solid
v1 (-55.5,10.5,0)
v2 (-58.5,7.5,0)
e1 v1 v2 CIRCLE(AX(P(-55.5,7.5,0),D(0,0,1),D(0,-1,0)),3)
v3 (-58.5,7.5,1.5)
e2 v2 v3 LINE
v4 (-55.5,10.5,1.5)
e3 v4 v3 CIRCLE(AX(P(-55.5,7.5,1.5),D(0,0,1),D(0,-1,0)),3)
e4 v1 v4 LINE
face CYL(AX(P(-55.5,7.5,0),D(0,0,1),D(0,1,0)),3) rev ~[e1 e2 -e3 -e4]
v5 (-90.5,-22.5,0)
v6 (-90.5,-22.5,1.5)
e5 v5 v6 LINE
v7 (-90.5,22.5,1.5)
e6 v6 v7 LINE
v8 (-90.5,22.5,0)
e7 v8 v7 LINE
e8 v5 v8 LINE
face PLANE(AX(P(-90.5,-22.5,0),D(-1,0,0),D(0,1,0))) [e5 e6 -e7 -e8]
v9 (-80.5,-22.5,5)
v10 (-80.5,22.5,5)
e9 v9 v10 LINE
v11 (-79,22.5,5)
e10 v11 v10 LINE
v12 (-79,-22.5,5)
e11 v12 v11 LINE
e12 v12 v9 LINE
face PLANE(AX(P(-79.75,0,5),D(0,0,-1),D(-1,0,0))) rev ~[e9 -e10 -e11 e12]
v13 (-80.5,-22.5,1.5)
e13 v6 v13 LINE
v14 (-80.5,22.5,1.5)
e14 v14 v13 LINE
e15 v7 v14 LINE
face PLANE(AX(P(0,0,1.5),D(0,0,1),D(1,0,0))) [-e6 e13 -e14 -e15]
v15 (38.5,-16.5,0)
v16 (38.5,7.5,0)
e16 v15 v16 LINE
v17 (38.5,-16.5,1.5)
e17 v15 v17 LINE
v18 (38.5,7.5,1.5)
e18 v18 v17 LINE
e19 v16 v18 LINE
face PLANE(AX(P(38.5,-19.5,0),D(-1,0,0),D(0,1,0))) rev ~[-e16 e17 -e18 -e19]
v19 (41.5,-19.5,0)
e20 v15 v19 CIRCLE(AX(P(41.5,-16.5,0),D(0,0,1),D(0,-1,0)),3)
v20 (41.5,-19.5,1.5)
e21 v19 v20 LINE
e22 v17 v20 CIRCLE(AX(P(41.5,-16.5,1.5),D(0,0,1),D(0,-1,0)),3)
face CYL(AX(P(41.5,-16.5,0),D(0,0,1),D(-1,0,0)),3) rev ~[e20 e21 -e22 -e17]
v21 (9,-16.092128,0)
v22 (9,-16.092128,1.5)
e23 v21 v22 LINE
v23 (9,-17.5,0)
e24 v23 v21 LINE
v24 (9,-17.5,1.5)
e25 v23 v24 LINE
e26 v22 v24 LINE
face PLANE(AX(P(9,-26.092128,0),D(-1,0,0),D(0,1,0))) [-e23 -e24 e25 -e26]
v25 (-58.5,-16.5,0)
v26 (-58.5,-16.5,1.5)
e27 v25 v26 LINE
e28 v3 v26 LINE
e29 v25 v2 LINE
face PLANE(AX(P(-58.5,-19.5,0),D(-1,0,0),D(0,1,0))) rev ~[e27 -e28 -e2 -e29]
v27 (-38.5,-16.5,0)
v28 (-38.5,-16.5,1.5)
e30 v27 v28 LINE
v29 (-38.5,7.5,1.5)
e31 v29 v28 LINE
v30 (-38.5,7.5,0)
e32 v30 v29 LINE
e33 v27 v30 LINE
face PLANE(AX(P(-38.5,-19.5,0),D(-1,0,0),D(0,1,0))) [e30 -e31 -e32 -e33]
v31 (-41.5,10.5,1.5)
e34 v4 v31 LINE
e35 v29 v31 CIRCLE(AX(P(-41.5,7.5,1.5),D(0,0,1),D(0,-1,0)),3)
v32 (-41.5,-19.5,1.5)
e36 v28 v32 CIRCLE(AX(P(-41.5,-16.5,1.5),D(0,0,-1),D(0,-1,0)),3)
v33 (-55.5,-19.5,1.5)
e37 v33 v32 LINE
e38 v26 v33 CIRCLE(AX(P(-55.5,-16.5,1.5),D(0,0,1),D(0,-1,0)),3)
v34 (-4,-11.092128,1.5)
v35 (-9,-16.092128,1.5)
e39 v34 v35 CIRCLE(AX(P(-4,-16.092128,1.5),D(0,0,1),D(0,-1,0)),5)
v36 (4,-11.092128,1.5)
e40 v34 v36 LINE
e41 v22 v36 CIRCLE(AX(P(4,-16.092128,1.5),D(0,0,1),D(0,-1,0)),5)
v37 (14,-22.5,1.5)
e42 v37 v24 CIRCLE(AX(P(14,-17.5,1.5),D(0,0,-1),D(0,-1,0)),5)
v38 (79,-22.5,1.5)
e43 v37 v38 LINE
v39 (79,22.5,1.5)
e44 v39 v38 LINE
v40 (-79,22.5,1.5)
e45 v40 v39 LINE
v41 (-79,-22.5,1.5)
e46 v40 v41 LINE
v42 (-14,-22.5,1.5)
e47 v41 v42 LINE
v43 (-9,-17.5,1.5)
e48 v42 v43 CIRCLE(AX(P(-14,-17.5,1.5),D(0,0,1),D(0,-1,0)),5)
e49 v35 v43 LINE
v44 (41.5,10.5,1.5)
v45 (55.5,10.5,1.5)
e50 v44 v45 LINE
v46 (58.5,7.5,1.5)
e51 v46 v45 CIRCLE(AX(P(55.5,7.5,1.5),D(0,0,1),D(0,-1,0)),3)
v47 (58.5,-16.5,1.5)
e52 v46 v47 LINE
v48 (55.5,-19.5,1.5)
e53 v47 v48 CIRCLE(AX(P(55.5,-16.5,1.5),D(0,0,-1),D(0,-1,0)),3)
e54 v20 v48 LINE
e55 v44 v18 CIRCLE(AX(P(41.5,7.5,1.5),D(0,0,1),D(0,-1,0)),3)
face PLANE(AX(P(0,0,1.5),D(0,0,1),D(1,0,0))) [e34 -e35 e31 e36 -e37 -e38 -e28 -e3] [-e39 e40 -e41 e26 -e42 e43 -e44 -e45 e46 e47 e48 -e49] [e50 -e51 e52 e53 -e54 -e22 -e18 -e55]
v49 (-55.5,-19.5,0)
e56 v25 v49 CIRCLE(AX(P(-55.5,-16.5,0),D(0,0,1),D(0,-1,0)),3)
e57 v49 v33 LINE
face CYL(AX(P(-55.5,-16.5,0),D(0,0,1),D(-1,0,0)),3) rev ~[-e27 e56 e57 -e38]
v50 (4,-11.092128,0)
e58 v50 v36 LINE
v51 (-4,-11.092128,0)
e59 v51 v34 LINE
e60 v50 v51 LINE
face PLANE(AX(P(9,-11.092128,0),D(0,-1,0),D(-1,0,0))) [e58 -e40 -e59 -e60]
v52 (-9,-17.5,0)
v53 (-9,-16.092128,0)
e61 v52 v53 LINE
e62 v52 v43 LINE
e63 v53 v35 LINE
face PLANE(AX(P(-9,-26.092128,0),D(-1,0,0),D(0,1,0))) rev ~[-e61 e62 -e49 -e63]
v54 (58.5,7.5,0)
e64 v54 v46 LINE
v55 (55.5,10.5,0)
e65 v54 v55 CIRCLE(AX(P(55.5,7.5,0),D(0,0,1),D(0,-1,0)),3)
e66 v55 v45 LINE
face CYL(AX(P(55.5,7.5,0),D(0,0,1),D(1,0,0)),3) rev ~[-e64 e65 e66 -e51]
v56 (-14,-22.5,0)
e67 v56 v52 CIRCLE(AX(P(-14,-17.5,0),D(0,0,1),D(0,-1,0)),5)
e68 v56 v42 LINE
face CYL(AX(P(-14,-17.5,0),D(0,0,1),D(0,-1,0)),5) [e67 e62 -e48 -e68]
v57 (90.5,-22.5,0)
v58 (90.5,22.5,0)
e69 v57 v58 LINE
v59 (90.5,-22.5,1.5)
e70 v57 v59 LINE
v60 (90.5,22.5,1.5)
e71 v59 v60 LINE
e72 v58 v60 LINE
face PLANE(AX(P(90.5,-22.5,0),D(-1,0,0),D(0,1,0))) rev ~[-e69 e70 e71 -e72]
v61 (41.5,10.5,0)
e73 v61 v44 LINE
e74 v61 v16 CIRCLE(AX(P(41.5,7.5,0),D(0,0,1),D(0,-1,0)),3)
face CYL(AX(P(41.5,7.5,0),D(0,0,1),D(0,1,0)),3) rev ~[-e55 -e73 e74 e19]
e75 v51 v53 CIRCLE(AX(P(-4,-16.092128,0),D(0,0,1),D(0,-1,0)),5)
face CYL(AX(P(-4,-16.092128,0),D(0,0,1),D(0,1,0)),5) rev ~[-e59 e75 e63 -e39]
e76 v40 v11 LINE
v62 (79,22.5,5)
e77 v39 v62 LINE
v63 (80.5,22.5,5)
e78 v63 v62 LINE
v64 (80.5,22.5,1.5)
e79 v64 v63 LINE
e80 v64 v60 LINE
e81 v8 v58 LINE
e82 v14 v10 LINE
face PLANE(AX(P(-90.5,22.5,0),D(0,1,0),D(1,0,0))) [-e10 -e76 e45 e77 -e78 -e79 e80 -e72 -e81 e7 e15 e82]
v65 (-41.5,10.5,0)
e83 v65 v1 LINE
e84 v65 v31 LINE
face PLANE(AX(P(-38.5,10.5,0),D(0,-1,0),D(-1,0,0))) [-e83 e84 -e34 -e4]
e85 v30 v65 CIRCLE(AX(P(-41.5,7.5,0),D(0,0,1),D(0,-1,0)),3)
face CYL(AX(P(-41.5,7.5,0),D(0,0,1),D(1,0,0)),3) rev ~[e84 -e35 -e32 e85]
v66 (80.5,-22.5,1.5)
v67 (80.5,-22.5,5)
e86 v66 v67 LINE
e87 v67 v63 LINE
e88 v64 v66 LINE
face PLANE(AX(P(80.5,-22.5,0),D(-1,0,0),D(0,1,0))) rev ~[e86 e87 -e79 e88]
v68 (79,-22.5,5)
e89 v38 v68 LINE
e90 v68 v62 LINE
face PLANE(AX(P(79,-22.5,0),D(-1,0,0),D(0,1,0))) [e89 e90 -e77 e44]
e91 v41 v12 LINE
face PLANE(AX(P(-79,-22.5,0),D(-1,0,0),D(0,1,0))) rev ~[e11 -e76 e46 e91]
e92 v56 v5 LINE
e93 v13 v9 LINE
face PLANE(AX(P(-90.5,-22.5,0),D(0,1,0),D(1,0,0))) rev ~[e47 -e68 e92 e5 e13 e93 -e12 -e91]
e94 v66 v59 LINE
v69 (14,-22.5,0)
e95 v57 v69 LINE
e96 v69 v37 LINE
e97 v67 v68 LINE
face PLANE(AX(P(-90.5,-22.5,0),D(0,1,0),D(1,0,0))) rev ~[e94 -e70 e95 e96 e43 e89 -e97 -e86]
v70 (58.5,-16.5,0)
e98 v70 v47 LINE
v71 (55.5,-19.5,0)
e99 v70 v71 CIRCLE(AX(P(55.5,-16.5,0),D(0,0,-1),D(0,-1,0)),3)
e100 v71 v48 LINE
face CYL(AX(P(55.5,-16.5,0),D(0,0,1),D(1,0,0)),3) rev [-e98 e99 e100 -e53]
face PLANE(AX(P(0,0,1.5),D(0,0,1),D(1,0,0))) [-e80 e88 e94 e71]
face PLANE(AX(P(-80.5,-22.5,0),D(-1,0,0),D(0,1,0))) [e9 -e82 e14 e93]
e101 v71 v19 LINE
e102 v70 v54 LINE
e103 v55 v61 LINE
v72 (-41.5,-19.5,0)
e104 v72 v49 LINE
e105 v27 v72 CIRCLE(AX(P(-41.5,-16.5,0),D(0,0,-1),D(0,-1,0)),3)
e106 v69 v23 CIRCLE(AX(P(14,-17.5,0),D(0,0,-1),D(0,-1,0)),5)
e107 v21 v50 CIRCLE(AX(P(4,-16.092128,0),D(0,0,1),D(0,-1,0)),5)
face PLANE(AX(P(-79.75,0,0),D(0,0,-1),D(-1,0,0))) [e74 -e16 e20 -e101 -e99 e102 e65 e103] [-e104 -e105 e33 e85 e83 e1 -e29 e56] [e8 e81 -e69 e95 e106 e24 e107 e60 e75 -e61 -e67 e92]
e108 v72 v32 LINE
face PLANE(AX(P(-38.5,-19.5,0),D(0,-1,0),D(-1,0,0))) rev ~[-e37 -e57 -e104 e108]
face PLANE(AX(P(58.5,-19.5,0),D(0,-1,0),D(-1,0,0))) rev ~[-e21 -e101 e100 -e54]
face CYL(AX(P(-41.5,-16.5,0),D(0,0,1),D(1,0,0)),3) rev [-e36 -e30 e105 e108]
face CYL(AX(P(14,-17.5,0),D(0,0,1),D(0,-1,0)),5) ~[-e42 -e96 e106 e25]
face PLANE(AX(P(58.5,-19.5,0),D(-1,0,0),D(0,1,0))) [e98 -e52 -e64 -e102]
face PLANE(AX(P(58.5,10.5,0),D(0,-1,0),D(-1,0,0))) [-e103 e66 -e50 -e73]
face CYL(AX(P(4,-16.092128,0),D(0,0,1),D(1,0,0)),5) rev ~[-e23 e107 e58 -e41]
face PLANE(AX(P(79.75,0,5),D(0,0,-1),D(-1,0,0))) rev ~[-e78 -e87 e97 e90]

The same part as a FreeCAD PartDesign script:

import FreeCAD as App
import Part
import Sketcher

V = App.Vector
Q = App.Units.Quantity


def edges_at(feature, points):
    """Names of the edges that pass closest to the given points."""
    edges = feature.Shape.Edges
    near = lambda p: min(range(len(edges)), key=lambda i: edges[i].distToShape(Part.Vertex(*p))[0])
    return sorted({f"Edge{near(p) + 1}" for p in points})


def add_polygon(sketch, points):
    """Adds a closed chain of lines whose ends are joined by coincident constraints."""
    first, n = sketch.GeometryCount, len(points)
    for a, b in zip(points, points[1:] + points[:1]):
        sketch.addGeometry(Part.LineSegment(App.Vector(*a, 0), App.Vector(*b, 0)), False)
    for i in range(n):
        sketch.addConstraint(Sketcher.Constraint("Coincident", first + i, 2, first + (i + 1) % n, 1))

doc = App.newDocument("Part")
body = doc.addObject("PartDesign::Body", "Body")

# Sketch on XY plane
sketch1 = body.newObject("Sketcher::SketchObject", "Sketch")
sketch1.AttachmentSupport = (doc.getObject("XY_Plane"), [""])
sketch1.MapMode = "FlatFace"
add_polygon(sketch1, [(-90, 22), (-90, -22), (90, -22), (90, 22)])  # lines 0-3
sketch1.addConstraint(Sketcher.Constraint("Vertical", 0))
sketch1.addConstraint(Sketcher.Constraint("Horizontal", 1))
sketch1.addConstraint(Sketcher.Constraint("Vertical", 2))
sketch1.addConstraint(Sketcher.Constraint("Horizontal", 3))
sketch1.addConstraint(Sketcher.Constraint("Symmetric", 0, 2, 2, 2, -1, 1))
sketch1.addConstraint(Sketcher.Constraint("DistanceX", 1, 1, 1, 2, Q("181 mm")))
sketch1.addConstraint(Sketcher.Constraint("DistanceY", 0, 2, 0, 1, Q("45 mm")))
pad1 = body.newObject("PartDesign::Pad", "Pad")
pad1.Profile = sketch1
pad1.Length = 1.5

# Sketch on XY plane
sketch2 = body.newObject("Sketcher::SketchObject", "Sketch001")
sketch2.AttachmentSupport = (doc.getObject("XY_Plane"), [""])
sketch2.MapMode = "FlatFace"
add_polygon(sketch2, [(9, -11), (9, -26), (-9, -26), (-9, -11)])  # lines 0-3
add_polygon(sketch2, [(-38, 10), (-38, -20), (-58, -20), (-58, 10)])  # lines 4-7
add_polygon(sketch2, [(58, 10), (58, -20), (38, -20), (38, 10)])  # lines 8-11
sketch2.addConstraint(Sketcher.Constraint("Vertical", 0))
sketch2.addConstraint(Sketcher.Constraint("Horizontal", 1))
sketch2.addConstraint(Sketcher.Constraint("Vertical", 2))
sketch2.addConstraint(Sketcher.Constraint("Horizontal", 3))
sketch2.addConstraint(Sketcher.Constraint("Vertical", 4))
sketch2.addConstraint(Sketcher.Constraint("Horizontal", 5))
sketch2.addConstraint(Sketcher.Constraint("Vertical", 6))
sketch2.addConstraint(Sketcher.Constraint("Horizontal", 7))
sketch2.addConstraint(Sketcher.Constraint("Vertical", 8))
sketch2.addConstraint(Sketcher.Constraint("Horizontal", 9))
sketch2.addConstraint(Sketcher.Constraint("Vertical", 10))
sketch2.addConstraint(Sketcher.Constraint("Horizontal", 11))
sketch2.addConstraint(Sketcher.Constraint("Symmetric", 5, 2, 8, 2, -2))
sketch2.addConstraint(Sketcher.Constraint("Symmetric", 7, 2, 10, 2, -2))
sketch2.addConstraint(Sketcher.Constraint("DistanceX", 1, 2, 1, 1, Q("18 mm")))
sketch2.addConstraint(Sketcher.Constraint("DistanceX", 5, 2, 5, 1, Q("20 mm")))
sketch2.addConstraint(Sketcher.Constraint("DistanceY", 0, 2, 0, 1, Q("15 mm")))
sketch2.addConstraint(Sketcher.Constraint("DistanceY", 4, 2, 4, 1, Q("30 mm")))
sketch2.addConstraint(Sketcher.Constraint("DistanceX", -1, 1, 0, 2, Q("9 mm")))
sketch2.addConstraint(Sketcher.Constraint("DistanceX", 4, 2, 8, 2, Q("97 mm")))
sketch2.addConstraint(Sketcher.Constraint("DistanceY", 4, 2, -1, 1, Q("19.5 mm")))
sketch2.addConstraint(Sketcher.Constraint("DistanceY", 0, 2, -1, 1, Q("26.092128 mm")))
pocket1 = body.newObject("PartDesign::Pocket", "Pocket")
pocket1.Profile = sketch2
pocket1.Type = "ThroughAll"
pocket1.Reversed = True
doc.recompute()

fillet = body.newObject("PartDesign::Fillet", "Fillet")
fillet.Base = (pocket1, edges_at(pocket1, [(-9, -22.5, 0.75), (9, -22.5, 0.75)]))
fillet.Radius = 5
doc.recompute()

fillet2 = body.newObject("PartDesign::Fillet", "Fillet001")
fillet2.Base = (fillet, edges_at(fillet, [(-9, -11.092, 0.75), (9, -11.092, 0.75)]))
fillet2.Radius = 5
doc.recompute()

fillet3 = body.newObject("PartDesign::Fillet", "Fillet002")
fillet3.Base = (fillet2, edges_at(fillet2, [
    (38.5, -19.5, 0.75),
    (58.5, -19.5, 0.75),
    (58.5, 10.5, 0.75),
    (38.5, 10.5, 0.75),
    (-38.5, -19.5, 0.75),
    (-38.5, 10.5, 0.75),
    (-58.5, 10.5, 0.75),
    (-58.5, -19.5, 0.75),
]))
fillet3.Radius = 3

# Sketch on XY plane
sketch3 = body.newObject("Sketcher::SketchObject", "Sketch002")
sketch3.AttachmentSupport = (doc.getObject("XY_Plane"), [""])
sketch3.MapMode = "FlatFace"
add_polygon(sketch3, [(-79, 22.5), (-79, -22.5), (-80.5, -22.5), (-80.5, 22.5)])  # lines 0-3
add_polygon(sketch3, [(80.5, 22.5), (80.5, -22.5), (79, -22.5), (79, 22.5)])  # lines 4-7
sketch3.addConstraint(Sketcher.Constraint("Vertical", 0))
sketch3.addConstraint(Sketcher.Constraint("Horizontal", 1))
sketch3.addConstraint(Sketcher.Constraint("Vertical", 2))
sketch3.addConstraint(Sketcher.Constraint("Horizontal", 3))
sketch3.addConstraint(Sketcher.Constraint("Vertical", 4))
sketch3.addConstraint(Sketcher.Constraint("Horizontal", 5))
sketch3.addConstraint(Sketcher.Constraint("Vertical", 6))
sketch3.addConstraint(Sketcher.Constraint("Horizontal", 7))
sketch3.addConstraint(Sketcher.Constraint("Symmetric", 2, 2, 4, 2, -1, 1))
sketch3.addConstraint(Sketcher.Constraint("Symmetric", 0, 2, 6, 2, -1, 1))
sketch3.addConstraint(Sketcher.Constraint("Horizontal", 1, 2, 4, 2))
sketch3.addConstraint(Sketcher.Constraint("DistanceY", 0, 2, 0, 1, Q("45 mm")))
sketch3.addConstraint(Sketcher.Constraint("DistanceX", 1, 2, 1, 1, Q("1.5 mm")))
sketch3.addConstraint(Sketcher.Constraint("DistanceX", 0, 2, -1, 1, Q("79 mm")))
pad2 = body.newObject("PartDesign::Pad", "Pad001")
pad2.Profile = sketch3
pad2.Length = 5

doc.recompute()
